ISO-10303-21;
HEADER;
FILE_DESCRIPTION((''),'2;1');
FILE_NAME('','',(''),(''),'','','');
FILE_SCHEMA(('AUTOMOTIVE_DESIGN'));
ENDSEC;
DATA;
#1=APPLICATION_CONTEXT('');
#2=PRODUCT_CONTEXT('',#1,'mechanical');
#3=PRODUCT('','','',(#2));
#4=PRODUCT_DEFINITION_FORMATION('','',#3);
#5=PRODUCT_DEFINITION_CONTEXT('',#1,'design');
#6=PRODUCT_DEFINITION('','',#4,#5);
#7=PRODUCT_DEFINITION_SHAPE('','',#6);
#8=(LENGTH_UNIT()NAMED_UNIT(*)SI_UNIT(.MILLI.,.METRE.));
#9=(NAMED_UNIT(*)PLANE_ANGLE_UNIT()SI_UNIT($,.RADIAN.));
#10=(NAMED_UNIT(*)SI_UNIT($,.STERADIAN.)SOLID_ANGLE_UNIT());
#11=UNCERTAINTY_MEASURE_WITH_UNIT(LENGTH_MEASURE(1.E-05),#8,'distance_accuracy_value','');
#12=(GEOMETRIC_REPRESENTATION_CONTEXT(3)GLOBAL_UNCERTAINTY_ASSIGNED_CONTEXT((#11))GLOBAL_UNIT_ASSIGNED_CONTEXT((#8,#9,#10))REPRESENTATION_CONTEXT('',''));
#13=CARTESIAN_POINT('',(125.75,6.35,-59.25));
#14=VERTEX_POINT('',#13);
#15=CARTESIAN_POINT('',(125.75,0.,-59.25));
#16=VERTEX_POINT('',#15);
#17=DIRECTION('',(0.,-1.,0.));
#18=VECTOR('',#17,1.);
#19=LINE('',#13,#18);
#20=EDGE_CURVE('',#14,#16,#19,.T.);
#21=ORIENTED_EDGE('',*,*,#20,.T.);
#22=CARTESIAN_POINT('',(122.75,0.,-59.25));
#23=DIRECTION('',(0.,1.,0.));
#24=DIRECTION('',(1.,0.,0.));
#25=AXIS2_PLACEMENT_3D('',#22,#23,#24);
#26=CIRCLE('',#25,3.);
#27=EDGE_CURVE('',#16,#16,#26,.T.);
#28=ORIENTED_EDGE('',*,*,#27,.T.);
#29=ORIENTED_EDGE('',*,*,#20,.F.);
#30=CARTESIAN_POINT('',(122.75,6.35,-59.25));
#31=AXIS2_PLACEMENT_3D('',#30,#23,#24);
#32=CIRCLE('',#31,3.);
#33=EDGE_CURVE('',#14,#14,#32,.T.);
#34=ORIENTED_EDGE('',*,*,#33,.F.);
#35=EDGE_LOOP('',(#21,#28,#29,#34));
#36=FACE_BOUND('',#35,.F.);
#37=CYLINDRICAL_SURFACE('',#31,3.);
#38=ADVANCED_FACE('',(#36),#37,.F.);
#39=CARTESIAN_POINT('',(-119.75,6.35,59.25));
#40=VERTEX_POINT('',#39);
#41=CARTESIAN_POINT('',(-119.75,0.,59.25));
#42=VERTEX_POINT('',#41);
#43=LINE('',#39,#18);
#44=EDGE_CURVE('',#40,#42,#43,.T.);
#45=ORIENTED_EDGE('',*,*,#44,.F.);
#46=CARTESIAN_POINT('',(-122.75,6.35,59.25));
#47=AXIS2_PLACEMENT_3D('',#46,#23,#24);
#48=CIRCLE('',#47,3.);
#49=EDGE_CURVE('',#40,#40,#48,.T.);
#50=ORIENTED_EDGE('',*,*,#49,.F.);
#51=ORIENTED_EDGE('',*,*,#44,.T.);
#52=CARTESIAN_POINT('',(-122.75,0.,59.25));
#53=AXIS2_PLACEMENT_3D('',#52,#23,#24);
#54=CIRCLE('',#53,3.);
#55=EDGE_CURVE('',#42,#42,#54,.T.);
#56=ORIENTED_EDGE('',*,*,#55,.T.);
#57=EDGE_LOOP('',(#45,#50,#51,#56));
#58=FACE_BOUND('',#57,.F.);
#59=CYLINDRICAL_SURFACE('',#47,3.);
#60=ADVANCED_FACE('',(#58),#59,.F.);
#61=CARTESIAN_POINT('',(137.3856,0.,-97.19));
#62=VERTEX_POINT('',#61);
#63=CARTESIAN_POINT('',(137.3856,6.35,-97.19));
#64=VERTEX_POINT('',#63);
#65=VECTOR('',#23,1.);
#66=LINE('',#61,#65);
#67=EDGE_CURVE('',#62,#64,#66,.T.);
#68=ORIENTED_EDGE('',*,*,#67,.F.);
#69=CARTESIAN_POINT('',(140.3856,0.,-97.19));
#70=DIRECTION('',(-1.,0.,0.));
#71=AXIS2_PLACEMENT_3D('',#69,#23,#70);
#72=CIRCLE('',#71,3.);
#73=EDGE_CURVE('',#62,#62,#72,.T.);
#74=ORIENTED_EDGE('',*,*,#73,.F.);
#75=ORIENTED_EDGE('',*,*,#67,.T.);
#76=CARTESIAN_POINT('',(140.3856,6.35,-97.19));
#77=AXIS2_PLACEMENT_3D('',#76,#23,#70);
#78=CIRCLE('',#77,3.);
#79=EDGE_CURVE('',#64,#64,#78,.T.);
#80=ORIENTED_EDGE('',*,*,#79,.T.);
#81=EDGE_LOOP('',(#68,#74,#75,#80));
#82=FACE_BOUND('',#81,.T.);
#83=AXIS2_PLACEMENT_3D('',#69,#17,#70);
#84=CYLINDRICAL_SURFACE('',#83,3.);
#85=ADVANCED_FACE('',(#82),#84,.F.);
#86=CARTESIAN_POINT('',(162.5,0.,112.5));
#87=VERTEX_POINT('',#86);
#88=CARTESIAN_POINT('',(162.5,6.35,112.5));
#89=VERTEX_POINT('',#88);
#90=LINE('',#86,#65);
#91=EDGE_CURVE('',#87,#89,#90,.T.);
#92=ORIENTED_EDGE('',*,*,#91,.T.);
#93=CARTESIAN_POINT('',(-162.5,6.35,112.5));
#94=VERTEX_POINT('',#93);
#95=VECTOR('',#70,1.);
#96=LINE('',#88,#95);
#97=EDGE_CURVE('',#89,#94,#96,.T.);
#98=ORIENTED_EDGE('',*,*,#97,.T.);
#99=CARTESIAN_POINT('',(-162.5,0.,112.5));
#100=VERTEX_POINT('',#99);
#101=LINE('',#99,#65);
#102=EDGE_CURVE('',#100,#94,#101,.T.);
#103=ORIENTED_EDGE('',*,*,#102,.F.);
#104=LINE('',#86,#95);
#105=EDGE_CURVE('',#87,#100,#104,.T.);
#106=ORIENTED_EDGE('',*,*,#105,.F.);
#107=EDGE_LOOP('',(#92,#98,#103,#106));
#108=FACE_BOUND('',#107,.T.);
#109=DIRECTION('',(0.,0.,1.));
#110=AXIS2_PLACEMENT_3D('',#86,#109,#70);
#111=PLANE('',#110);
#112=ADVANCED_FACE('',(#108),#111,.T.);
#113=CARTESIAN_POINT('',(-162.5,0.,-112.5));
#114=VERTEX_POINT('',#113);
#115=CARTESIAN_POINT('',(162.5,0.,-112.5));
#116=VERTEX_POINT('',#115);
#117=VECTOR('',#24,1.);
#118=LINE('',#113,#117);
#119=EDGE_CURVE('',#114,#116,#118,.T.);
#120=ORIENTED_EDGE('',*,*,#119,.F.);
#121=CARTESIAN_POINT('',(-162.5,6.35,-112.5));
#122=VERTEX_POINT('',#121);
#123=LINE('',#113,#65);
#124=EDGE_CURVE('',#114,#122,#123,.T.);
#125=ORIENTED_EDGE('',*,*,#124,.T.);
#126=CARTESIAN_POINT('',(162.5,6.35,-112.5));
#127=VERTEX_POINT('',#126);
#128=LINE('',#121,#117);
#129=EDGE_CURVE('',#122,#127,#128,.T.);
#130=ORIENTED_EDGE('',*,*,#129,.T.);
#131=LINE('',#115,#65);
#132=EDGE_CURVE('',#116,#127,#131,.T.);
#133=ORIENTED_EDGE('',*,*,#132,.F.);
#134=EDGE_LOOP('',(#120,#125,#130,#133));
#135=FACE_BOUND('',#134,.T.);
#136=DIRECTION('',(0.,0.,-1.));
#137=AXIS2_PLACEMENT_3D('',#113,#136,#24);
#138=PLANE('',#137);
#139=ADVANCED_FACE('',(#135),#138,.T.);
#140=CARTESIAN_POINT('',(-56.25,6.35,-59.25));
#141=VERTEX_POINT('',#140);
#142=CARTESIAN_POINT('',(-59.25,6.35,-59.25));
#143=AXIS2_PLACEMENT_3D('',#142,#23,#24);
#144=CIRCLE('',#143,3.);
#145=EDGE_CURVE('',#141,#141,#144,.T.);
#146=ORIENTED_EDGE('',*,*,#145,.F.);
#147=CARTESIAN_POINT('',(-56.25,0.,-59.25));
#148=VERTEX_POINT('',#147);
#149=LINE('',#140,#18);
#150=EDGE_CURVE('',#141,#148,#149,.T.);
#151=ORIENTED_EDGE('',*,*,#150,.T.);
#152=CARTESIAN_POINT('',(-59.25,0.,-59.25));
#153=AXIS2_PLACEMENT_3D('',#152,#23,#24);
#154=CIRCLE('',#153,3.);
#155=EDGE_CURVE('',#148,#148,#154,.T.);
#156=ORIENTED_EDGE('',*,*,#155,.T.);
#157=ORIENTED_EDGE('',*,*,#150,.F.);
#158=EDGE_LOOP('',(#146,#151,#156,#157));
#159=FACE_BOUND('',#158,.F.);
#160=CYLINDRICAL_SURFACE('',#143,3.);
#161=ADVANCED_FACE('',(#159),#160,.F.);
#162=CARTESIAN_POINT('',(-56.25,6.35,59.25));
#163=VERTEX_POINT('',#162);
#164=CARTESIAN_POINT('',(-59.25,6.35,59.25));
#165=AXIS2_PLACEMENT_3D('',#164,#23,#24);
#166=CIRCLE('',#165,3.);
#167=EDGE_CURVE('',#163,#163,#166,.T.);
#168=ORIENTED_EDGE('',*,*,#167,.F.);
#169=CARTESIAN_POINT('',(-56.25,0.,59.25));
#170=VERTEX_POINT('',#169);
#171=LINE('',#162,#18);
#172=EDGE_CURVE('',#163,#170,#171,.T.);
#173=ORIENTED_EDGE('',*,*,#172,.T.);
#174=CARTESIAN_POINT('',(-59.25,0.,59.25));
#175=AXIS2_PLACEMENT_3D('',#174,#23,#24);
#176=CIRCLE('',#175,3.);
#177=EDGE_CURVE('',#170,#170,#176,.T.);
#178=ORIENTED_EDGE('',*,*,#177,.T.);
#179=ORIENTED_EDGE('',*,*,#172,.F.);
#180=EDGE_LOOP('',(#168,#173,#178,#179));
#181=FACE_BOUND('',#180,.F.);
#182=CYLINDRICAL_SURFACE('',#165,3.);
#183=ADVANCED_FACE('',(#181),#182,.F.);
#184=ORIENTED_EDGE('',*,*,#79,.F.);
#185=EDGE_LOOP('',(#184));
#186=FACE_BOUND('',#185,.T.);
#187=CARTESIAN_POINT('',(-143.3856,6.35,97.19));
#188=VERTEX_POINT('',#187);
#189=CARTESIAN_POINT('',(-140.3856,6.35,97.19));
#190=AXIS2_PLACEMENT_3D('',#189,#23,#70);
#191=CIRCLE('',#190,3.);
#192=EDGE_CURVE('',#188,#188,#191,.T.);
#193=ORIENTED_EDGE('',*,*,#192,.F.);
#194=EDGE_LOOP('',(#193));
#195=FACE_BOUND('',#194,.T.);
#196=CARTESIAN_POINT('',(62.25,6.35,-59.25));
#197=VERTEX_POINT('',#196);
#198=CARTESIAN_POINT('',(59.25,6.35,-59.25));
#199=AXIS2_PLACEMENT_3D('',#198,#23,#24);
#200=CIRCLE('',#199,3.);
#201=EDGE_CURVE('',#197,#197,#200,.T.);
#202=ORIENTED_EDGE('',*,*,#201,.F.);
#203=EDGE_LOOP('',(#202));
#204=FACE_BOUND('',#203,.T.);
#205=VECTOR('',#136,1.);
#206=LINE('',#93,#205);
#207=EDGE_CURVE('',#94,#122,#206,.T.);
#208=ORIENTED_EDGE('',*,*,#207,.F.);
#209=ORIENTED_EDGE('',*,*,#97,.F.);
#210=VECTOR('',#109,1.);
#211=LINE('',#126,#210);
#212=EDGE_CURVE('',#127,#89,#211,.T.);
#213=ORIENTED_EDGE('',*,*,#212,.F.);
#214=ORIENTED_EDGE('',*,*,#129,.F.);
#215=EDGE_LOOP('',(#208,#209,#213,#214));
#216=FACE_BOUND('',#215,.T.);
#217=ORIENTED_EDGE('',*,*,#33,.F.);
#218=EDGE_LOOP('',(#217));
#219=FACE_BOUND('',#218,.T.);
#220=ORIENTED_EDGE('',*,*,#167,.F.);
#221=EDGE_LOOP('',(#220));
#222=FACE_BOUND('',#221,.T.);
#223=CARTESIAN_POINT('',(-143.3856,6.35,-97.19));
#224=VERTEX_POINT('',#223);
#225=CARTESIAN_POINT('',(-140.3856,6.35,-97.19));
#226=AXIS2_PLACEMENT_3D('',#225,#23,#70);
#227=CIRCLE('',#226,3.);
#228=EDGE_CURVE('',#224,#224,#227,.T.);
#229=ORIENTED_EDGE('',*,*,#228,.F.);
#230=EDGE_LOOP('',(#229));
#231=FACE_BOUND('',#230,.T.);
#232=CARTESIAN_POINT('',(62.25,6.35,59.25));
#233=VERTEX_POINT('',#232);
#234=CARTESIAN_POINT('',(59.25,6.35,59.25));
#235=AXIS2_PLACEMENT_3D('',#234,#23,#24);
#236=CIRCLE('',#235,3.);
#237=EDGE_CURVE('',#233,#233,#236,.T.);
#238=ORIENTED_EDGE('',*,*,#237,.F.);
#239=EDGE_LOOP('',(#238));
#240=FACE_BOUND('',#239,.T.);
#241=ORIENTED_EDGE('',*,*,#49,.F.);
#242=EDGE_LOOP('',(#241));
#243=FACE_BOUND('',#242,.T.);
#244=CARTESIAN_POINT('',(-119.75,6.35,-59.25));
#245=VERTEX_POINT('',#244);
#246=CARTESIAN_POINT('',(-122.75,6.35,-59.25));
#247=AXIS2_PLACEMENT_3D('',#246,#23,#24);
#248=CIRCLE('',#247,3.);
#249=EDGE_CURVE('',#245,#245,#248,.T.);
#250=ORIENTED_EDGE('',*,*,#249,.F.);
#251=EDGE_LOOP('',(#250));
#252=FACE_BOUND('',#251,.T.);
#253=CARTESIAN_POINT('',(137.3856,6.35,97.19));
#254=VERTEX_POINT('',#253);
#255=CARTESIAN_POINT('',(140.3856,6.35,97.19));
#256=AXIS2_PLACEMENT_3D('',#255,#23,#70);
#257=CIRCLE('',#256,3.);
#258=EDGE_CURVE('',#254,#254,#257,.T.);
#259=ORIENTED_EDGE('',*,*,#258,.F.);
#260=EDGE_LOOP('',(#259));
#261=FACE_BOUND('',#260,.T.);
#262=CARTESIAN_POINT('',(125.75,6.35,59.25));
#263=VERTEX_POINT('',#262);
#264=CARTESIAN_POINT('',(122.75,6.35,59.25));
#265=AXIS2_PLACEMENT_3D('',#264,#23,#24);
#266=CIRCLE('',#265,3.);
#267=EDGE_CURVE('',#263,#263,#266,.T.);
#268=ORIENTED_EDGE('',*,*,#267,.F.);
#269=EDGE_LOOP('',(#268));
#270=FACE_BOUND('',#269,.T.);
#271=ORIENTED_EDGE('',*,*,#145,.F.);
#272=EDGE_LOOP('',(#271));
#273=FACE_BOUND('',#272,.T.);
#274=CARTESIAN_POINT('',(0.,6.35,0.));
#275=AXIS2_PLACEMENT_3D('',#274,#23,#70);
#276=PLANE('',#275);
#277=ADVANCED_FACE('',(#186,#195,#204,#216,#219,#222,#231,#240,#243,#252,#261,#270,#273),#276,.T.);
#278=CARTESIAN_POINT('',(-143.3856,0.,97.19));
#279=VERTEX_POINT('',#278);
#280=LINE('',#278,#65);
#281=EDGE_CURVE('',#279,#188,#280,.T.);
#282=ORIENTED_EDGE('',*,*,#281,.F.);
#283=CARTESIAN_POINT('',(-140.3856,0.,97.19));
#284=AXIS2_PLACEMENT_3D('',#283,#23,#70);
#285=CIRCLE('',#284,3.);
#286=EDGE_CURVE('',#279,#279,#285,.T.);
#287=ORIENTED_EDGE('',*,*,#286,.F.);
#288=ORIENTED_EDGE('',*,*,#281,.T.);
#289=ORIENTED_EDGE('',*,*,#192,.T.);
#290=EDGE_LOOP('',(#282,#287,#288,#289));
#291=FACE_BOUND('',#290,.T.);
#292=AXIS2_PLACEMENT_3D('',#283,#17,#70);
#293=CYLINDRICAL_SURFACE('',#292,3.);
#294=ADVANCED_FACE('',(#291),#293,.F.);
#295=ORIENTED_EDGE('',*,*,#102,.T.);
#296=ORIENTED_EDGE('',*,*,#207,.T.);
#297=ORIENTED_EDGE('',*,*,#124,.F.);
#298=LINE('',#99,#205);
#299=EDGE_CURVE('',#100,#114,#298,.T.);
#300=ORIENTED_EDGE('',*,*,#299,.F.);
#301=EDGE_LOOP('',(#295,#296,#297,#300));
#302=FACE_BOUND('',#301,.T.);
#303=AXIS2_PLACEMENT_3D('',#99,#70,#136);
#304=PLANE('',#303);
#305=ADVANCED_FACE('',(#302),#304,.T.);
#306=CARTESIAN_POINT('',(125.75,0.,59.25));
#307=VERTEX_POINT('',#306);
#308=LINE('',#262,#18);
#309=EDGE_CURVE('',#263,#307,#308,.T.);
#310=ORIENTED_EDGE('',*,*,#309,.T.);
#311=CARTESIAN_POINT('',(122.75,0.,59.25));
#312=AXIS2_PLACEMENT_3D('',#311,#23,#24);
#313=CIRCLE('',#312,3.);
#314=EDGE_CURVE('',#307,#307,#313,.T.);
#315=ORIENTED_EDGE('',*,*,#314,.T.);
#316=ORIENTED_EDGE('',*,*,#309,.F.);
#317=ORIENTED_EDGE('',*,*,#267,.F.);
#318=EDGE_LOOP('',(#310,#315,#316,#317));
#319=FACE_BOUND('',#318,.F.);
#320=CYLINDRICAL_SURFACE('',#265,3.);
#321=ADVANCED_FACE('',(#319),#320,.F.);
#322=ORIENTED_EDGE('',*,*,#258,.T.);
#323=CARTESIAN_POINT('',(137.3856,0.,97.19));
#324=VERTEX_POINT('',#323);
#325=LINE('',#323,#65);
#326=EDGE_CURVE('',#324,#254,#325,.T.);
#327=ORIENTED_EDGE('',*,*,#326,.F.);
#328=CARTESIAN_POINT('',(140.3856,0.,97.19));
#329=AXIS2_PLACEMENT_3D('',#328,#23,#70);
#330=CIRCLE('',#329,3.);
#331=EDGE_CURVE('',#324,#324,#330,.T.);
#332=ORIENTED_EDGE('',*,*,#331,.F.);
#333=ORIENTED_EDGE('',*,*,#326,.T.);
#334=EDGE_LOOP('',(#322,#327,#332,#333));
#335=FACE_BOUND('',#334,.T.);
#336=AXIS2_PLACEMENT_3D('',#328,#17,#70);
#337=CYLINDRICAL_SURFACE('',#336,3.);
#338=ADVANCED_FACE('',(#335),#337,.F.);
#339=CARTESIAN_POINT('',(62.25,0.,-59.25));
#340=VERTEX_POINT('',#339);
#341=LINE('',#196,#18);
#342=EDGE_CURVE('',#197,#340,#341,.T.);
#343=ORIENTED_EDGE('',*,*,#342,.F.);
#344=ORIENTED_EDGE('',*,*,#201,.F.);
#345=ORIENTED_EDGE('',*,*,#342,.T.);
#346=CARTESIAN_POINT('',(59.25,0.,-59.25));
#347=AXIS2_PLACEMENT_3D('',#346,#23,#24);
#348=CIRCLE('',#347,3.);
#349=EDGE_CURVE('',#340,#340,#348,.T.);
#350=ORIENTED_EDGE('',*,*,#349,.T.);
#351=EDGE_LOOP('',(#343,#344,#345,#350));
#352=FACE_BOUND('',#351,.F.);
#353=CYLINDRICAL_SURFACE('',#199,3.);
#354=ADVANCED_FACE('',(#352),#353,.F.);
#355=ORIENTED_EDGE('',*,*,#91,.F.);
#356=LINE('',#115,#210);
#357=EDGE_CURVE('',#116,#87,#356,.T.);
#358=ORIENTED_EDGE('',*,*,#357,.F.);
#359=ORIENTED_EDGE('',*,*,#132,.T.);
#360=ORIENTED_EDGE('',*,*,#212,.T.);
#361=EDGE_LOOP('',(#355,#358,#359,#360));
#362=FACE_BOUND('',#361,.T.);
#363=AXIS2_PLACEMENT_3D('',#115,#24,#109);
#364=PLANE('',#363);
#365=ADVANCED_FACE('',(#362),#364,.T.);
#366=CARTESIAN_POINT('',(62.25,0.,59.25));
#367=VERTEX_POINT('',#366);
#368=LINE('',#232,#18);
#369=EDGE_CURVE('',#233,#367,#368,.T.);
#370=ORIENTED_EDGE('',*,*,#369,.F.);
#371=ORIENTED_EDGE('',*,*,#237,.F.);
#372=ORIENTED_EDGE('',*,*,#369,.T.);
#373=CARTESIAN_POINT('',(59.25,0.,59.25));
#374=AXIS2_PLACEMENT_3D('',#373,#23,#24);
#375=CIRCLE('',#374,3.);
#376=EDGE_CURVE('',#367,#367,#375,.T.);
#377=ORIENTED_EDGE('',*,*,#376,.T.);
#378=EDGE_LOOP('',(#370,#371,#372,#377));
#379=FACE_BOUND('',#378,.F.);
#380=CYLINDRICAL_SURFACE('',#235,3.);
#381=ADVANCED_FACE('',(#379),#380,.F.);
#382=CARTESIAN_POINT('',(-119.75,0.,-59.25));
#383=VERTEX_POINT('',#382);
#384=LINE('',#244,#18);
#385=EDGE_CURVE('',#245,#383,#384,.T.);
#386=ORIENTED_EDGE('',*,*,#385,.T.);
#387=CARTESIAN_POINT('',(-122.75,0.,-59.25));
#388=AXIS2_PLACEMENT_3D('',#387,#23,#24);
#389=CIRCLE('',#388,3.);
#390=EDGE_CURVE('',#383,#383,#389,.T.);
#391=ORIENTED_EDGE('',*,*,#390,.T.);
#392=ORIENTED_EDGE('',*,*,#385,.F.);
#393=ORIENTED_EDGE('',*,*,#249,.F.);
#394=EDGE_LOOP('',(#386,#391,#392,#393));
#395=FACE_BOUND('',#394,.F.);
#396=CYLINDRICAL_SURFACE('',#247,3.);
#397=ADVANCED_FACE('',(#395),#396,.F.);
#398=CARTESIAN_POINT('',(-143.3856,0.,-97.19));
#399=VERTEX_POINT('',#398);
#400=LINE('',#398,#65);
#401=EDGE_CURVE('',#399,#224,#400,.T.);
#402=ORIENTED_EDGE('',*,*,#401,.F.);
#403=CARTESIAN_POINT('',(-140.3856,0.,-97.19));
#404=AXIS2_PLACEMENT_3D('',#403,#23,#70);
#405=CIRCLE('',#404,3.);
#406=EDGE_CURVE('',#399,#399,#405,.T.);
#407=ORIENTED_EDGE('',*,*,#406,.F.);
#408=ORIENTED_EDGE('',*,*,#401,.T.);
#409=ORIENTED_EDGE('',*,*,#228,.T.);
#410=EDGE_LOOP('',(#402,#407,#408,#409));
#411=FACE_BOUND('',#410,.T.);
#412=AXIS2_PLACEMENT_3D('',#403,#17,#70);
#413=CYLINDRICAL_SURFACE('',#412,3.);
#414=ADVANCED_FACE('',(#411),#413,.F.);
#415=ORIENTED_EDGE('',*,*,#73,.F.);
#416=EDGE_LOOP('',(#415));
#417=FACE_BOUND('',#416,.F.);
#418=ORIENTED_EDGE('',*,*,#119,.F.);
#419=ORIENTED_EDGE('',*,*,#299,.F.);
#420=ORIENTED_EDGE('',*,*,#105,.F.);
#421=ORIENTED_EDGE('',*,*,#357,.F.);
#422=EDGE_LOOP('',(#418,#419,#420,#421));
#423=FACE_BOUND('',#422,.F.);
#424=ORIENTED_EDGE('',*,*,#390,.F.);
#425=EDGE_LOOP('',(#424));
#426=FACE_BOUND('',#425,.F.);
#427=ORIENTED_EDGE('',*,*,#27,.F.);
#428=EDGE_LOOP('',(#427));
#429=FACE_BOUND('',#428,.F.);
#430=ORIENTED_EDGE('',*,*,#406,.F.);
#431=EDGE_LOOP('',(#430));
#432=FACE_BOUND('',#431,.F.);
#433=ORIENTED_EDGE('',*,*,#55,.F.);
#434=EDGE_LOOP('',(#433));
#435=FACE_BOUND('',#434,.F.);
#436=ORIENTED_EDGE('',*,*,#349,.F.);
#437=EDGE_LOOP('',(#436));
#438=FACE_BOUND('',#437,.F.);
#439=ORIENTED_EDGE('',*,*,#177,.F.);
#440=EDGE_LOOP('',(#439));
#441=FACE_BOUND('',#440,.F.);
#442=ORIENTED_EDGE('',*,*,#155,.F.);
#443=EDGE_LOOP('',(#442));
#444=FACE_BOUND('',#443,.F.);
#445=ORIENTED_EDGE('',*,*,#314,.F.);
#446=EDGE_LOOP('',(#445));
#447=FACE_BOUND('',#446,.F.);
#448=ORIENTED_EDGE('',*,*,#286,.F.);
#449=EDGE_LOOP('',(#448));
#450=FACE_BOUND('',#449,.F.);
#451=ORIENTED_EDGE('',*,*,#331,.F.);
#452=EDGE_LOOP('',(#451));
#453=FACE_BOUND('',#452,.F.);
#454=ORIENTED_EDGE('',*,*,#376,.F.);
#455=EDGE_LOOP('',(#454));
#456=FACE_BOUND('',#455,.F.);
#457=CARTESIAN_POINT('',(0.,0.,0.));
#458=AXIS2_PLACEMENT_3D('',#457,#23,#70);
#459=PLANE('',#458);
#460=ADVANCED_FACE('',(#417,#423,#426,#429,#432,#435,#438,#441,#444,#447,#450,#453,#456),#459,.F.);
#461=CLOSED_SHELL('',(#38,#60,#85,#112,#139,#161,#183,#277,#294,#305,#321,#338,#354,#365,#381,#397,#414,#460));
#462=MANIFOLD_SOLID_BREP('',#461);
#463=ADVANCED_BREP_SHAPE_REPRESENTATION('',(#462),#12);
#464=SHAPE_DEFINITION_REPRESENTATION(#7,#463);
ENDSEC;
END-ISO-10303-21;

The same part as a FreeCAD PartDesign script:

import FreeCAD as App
import Part
import Sketcher
Q = App.Units.Quantity


def add_polygon(sketch, points):
    """Adds a closed chain of lines whose ends are joined by coincident constraints."""
    first, n = sketch.GeometryCount, len(points)
    for a, b in zip(points, points[1:] + points[:1]):
        sketch.addGeometry(Part.LineSegment(App.Vector(*a, 0), App.Vector(*b, 0)), False)
    for i in range(n):
        sketch.addConstraint(Sketcher.Constraint("Coincident", first + i, 2, first + (i + 1) % n, 1))

doc = App.newDocument("Part")
body = doc.addObject("PartDesign::Body", "Body")

sketch1 = body.newObject("Sketcher::SketchObject", "Sketch")
sketch1.AttachmentSupport = (doc.getObject("XZ_Plane"), [""])
sketch1.MapMode = "FlatFace"
add_polygon(sketch1, [(-162.5, 112.5), (162.5, 112.5), (162.5, -112.5), (-162.5, -112.5)])
sketch1.addGeometry(Part.Circle(App.Vector(140.4, -97.2, 0), App.Vector(0, 0, 1), 3), False)
sketch1.addGeometry(Part.Circle(App.Vector(-140.4, -97.2, 0), App.Vector(0, 0, 1), 3), False)
sketch1.addGeometry(Part.Circle(App.Vector(140.4, 97.2, 0), App.Vector(0, 0, 1), 3), False)
sketch1.addGeometry(Part.Circle(App.Vector(-140.4, 97.2, 0), App.Vector(0, 0, 1), 3), False)
sketch1.addConstraint(Sketcher.Constraint("Horizontal", 0))
sketch1.addConstraint(Sketcher.Constraint("Vertical", 1))
sketch1.addConstraint(Sketcher.Constraint("Horizontal", 2))
sketch1.addConstraint(Sketcher.Constraint("Vertical", 3))
sketch1.addConstraint(Sketcher.Constraint("Equal", 4, 5))
sketch1.addConstraint(Sketcher.Constraint("Equal", 5, 6))
sketch1.addConstraint(Sketcher.Constraint("Equal", 6, 7))
sketch1.addConstraint(Sketcher.Constraint("Symmetric", 5, 3, 6, 3, -1, 1))
sketch1.addConstraint(Sketcher.Constraint("Symmetric", 4, 3, 7, 3, -1, 1))
sketch1.addConstraint(Sketcher.Constraint("Symmetric", 0, 2, 2, 2, -1, 1))
sketch1.addConstraint(Sketcher.Constraint("Symmetric", 4, 3, 5, 3, -2))
sketch1.addConstraint(Sketcher.Constraint("Diameter", 4, Q("6 mm")))
sketch1.addConstraint(Sketcher.Constraint("DistanceX", 0, 1, 0, 2, Q("325 mm")))
sketch1.addConstraint(Sketcher.Constraint("DistanceY", 1, 2, 1, 1, Q("225 mm")))
sketch1.addConstraint(Sketcher.Constraint("DistanceY", 4, 3, -1, 1, Q("97.19 mm")))
sketch1.addConstraint(Sketcher.Constraint("DistanceX", -1, 1, 4, 3, Q("140.3856 mm")))
pad1 = body.newObject("PartDesign::Pad", "Pad")
pad1.Profile = sketch1
pad1.Length = 6.35
pad1.Reversed = True

sketch2 = body.newObject("Sketcher::SketchObject", "Sketch001")
sketch2.AttachmentSupport = (doc.getObject("XZ_Plane"), [""])
sketch2.MapMode = "FlatFace"
sketch2.AttachmentOffset = App.Placement(App.Vector(0, 0, -6.35), App.Rotation())
sketch2.addGeometry(Part.Circle(App.Vector(-122.8, -59.2, 0), App.Vector(0, 0, 1), 3), False)
sketch2.addGeometry(Part.Circle(App.Vector(-59.2, -59.2, 0), App.Vector(0, 0, 1), 3), False)
sketch2.addGeometry(Part.Circle(App.Vector(-122.8, 59.2, 0), App.Vector(0, 0, 1), 3), False)
sketch2.addGeometry(Part.Circle(App.Vector(-59.2, 59.2, 0), App.Vector(0, 0, 1), 3), False)
sketch2.addGeometry(Part.Circle(App.Vector(122.8, -59.2, 0), App.Vector(0, 0, 1), 3), False)
sketch2.addGeometry(Part.Circle(App.Vector(59.2, -59.2, 0), App.Vector(0, 0, 1), 3), False)
sketch2.addGeometry(Part.Circle(App.Vector(59.2, 59.2, 0), App.Vector(0, 0, 1), 3), False)
sketch2.addGeometry(Part.Circle(App.Vector(122.8, 59.2, 0), App.Vector(0, 0, 1), 3), False)
sketch2.addConstraint(Sketcher.Constraint("Equal", 0, 1))
sketch2.addConstraint(Sketcher.Constraint("Equal", 1, 2))
sketch2.addConstraint(Sketcher.Constraint("Equal", 2, 3))
sketch2.addConstraint(Sketcher.Constraint("Equal", 3, 4))
sketch2.addConstraint(Sketcher.Constraint("Equal", 4, 5))
sketch2.addConstraint(Sketcher.Constraint("Equal", 5, 6))
sketch2.addConstraint(Sketcher.Constraint("Equal", 6, 7))
sketch2.addConstraint(Sketcher.Constraint("Symmetric", 2, 3, 4, 3, -1, 1))
sketch2.addConstraint(Sketcher.Constraint("Symmetric", 3, 3, 5, 3, -1, 1))
sketch2.addConstraint(Sketcher.Constraint("Symmetric", 1, 3, 6, 3, -1, 1))
sketch2.addConstraint(Sketcher.Constraint("Symmetric", 0, 3, 7, 3, -1, 1))
sketch2.addConstraint(Sketcher.Constraint("Symmetric", 0, 3, 4, 3, -2))
sketch2.addConstraint(Sketcher.Constraint("Symmetric", 1, 3, 5, 3, -2))
sketch2.addConstraint(Sketcher.Constraint("Horizontal", 0, 3, 1, 3))
sketch2.addConstraint(Sketcher.Constraint("Diameter", 0, Q("6 mm")))
sketch2.addConstraint(Sketcher.Constraint("DistanceY", 0, 3, 2, 3, Q("118.5 mm")))
sketch2.addConstraint(Sketcher.Constraint("DistanceX", 0, 3, 4, 3, Q("245.5 mm")))
sketch2.addConstraint(Sketcher.Constraint("DistanceX", 1, 3, 5, 3, Q("118.5 mm")))
pocket1 = body.newObject("PartDesign::Pocket", "Pocket")
pocket1.Profile = sketch2
pocket1.Length = 6.35
pocket1.Reversed = True

doc.recompute()
